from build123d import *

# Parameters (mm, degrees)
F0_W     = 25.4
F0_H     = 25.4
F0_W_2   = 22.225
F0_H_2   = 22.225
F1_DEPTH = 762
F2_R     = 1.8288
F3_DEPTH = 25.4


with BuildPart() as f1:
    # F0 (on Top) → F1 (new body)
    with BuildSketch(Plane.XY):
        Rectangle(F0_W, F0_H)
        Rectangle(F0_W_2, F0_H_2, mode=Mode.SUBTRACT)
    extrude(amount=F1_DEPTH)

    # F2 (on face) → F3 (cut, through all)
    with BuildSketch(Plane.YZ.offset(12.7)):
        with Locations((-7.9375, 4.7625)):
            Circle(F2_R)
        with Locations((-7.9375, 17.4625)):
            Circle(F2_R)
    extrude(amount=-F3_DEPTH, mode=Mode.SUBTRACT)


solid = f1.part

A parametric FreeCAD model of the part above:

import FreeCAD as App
import Part
import Sketcher
from FreeCAD import Vector
Q = App.Units.Quantity


def add_polygon(sketch, points):
    """Adds a closed chain of lines whose ends are joined by coincident constraints."""
    first, n = sketch.GeometryCount, len(points)
    for a, b in zip(points, points[1:] + points[:1]):
        sketch.addGeometry(Part.LineSegment(App.Vector(*a, 0), App.Vector(*b, 0)), False)
    for i in range(n):
        sketch.addConstraint(Sketcher.Constraint("Coincident", first + i, 2, first + (i + 1) % n, 1))

doc = App.newDocument("Part")
body = doc.addObject("PartDesign::Body", "Body")

sketch1 = doc.addObject("Sketcher::SketchObject", "Sketch")
body.addObject(sketch1)
sketch1.AttachmentSupport = (doc.XY_Plane, [""])
sketch1.MapMode = "FlatFace"
add_polygon(sketch1, [(-13, 13), (-13, -13), (13, -13), (13, 13)])
add_polygon(sketch1, [(11, -11), (-11, -11), (-11, 11), (11, 11)])
sketch1.addConstraint(Sketcher.Constraint("Vertical", 0))
sketch1.addConstraint(Sketcher.Constraint("Horizontal", 1))
sketch1.addConstraint(Sketcher.Constraint("Vertical", 2))
sketch1.addConstraint(Sketcher.Constraint("Horizontal", 3))
sketch1.addConstraint(Sketcher.Constraint("Horizontal", 4))
sketch1.addConstraint(Sketcher.Constraint("Vertical", 5))
sketch1.addConstraint(Sketcher.Constraint("Horizontal", 6))
sketch1.addConstraint(Sketcher.Constraint("Vertical", 7))
sketch1.addConstraint(Sketcher.Constraint("Symmetric", 0, 2, 2, 2, -1, 1))
sketch1.addConstraint(Sketcher.Constraint("Symmetric", 4, 2, 6, 2, -1, 1))
sketch1.addConstraint(Sketcher.Constraint("Equal", 3, 0))
sketch1.addConstraint(Sketcher.Constraint("Equal", 6, 5))
sketch1.addConstraint(Sketcher.Constraint("DistanceX", 1, 1, 1, 2, Q("1 in")))
sketch1.addConstraint(Sketcher.Constraint("DistanceX", 4, 2, 4, 1, Q("0.875 in")))
pad1 = doc.addObject("PartDesign::Pad", "Pad")
body.addObject(pad1)
pad1.Profile = sketch1
pad1.Length = Q("30 in")

sketch2 = doc.addObject("Sketcher::SketchObject", "Sketch001")
body.addObject(sketch2)
sketch2.AttachmentSupport = (doc.YZ_Plane, [""])
sketch2.MapMode = "FlatFace"
sketch2.AttachmentOffset = App.Placement(Vector(0, 0, 0.5 * 25.4), App.Rotation())
sketch2.addGeometry(Part.Circle(Vector(-7.9, 4.8, 0), Vector(0, 0, 1), 1.8), False)
sketch2.addGeometry(Part.Circle(Vector(-7.9, 17.5, 0), Vector(0, 0, 1), 1.8), False)
sketch2.addConstraint(Sketcher.Constraint("Equal", 0, 1))
sketch2.addConstraint(Sketcher.Constraint("Vertical", 0, 3, 1, 3))
sketch2.addConstraint(Sketcher.Constraint("Diameter", 0, Q("0.144 in")))
sketch2.addConstraint(Sketcher.Constraint("DistanceY", 0, 3, 1, 3, Q("0.5 in")))
sketch2.addConstraint(Sketcher.Constraint("DistanceX", 0, 3, -1, 1, Q("0.3125 in")))
sketch2.addConstraint(Sketcher.Constraint("DistanceY", -1, 1, 0, 3, Q("0.1875 in")))
pocket1 = doc.addObject("PartDesign::Pocket", "Pocket")
body.addObject(pocket1)
pocket1.Profile = sketch2
pocket1.Type = "ThroughAll"

doc.recompute()
